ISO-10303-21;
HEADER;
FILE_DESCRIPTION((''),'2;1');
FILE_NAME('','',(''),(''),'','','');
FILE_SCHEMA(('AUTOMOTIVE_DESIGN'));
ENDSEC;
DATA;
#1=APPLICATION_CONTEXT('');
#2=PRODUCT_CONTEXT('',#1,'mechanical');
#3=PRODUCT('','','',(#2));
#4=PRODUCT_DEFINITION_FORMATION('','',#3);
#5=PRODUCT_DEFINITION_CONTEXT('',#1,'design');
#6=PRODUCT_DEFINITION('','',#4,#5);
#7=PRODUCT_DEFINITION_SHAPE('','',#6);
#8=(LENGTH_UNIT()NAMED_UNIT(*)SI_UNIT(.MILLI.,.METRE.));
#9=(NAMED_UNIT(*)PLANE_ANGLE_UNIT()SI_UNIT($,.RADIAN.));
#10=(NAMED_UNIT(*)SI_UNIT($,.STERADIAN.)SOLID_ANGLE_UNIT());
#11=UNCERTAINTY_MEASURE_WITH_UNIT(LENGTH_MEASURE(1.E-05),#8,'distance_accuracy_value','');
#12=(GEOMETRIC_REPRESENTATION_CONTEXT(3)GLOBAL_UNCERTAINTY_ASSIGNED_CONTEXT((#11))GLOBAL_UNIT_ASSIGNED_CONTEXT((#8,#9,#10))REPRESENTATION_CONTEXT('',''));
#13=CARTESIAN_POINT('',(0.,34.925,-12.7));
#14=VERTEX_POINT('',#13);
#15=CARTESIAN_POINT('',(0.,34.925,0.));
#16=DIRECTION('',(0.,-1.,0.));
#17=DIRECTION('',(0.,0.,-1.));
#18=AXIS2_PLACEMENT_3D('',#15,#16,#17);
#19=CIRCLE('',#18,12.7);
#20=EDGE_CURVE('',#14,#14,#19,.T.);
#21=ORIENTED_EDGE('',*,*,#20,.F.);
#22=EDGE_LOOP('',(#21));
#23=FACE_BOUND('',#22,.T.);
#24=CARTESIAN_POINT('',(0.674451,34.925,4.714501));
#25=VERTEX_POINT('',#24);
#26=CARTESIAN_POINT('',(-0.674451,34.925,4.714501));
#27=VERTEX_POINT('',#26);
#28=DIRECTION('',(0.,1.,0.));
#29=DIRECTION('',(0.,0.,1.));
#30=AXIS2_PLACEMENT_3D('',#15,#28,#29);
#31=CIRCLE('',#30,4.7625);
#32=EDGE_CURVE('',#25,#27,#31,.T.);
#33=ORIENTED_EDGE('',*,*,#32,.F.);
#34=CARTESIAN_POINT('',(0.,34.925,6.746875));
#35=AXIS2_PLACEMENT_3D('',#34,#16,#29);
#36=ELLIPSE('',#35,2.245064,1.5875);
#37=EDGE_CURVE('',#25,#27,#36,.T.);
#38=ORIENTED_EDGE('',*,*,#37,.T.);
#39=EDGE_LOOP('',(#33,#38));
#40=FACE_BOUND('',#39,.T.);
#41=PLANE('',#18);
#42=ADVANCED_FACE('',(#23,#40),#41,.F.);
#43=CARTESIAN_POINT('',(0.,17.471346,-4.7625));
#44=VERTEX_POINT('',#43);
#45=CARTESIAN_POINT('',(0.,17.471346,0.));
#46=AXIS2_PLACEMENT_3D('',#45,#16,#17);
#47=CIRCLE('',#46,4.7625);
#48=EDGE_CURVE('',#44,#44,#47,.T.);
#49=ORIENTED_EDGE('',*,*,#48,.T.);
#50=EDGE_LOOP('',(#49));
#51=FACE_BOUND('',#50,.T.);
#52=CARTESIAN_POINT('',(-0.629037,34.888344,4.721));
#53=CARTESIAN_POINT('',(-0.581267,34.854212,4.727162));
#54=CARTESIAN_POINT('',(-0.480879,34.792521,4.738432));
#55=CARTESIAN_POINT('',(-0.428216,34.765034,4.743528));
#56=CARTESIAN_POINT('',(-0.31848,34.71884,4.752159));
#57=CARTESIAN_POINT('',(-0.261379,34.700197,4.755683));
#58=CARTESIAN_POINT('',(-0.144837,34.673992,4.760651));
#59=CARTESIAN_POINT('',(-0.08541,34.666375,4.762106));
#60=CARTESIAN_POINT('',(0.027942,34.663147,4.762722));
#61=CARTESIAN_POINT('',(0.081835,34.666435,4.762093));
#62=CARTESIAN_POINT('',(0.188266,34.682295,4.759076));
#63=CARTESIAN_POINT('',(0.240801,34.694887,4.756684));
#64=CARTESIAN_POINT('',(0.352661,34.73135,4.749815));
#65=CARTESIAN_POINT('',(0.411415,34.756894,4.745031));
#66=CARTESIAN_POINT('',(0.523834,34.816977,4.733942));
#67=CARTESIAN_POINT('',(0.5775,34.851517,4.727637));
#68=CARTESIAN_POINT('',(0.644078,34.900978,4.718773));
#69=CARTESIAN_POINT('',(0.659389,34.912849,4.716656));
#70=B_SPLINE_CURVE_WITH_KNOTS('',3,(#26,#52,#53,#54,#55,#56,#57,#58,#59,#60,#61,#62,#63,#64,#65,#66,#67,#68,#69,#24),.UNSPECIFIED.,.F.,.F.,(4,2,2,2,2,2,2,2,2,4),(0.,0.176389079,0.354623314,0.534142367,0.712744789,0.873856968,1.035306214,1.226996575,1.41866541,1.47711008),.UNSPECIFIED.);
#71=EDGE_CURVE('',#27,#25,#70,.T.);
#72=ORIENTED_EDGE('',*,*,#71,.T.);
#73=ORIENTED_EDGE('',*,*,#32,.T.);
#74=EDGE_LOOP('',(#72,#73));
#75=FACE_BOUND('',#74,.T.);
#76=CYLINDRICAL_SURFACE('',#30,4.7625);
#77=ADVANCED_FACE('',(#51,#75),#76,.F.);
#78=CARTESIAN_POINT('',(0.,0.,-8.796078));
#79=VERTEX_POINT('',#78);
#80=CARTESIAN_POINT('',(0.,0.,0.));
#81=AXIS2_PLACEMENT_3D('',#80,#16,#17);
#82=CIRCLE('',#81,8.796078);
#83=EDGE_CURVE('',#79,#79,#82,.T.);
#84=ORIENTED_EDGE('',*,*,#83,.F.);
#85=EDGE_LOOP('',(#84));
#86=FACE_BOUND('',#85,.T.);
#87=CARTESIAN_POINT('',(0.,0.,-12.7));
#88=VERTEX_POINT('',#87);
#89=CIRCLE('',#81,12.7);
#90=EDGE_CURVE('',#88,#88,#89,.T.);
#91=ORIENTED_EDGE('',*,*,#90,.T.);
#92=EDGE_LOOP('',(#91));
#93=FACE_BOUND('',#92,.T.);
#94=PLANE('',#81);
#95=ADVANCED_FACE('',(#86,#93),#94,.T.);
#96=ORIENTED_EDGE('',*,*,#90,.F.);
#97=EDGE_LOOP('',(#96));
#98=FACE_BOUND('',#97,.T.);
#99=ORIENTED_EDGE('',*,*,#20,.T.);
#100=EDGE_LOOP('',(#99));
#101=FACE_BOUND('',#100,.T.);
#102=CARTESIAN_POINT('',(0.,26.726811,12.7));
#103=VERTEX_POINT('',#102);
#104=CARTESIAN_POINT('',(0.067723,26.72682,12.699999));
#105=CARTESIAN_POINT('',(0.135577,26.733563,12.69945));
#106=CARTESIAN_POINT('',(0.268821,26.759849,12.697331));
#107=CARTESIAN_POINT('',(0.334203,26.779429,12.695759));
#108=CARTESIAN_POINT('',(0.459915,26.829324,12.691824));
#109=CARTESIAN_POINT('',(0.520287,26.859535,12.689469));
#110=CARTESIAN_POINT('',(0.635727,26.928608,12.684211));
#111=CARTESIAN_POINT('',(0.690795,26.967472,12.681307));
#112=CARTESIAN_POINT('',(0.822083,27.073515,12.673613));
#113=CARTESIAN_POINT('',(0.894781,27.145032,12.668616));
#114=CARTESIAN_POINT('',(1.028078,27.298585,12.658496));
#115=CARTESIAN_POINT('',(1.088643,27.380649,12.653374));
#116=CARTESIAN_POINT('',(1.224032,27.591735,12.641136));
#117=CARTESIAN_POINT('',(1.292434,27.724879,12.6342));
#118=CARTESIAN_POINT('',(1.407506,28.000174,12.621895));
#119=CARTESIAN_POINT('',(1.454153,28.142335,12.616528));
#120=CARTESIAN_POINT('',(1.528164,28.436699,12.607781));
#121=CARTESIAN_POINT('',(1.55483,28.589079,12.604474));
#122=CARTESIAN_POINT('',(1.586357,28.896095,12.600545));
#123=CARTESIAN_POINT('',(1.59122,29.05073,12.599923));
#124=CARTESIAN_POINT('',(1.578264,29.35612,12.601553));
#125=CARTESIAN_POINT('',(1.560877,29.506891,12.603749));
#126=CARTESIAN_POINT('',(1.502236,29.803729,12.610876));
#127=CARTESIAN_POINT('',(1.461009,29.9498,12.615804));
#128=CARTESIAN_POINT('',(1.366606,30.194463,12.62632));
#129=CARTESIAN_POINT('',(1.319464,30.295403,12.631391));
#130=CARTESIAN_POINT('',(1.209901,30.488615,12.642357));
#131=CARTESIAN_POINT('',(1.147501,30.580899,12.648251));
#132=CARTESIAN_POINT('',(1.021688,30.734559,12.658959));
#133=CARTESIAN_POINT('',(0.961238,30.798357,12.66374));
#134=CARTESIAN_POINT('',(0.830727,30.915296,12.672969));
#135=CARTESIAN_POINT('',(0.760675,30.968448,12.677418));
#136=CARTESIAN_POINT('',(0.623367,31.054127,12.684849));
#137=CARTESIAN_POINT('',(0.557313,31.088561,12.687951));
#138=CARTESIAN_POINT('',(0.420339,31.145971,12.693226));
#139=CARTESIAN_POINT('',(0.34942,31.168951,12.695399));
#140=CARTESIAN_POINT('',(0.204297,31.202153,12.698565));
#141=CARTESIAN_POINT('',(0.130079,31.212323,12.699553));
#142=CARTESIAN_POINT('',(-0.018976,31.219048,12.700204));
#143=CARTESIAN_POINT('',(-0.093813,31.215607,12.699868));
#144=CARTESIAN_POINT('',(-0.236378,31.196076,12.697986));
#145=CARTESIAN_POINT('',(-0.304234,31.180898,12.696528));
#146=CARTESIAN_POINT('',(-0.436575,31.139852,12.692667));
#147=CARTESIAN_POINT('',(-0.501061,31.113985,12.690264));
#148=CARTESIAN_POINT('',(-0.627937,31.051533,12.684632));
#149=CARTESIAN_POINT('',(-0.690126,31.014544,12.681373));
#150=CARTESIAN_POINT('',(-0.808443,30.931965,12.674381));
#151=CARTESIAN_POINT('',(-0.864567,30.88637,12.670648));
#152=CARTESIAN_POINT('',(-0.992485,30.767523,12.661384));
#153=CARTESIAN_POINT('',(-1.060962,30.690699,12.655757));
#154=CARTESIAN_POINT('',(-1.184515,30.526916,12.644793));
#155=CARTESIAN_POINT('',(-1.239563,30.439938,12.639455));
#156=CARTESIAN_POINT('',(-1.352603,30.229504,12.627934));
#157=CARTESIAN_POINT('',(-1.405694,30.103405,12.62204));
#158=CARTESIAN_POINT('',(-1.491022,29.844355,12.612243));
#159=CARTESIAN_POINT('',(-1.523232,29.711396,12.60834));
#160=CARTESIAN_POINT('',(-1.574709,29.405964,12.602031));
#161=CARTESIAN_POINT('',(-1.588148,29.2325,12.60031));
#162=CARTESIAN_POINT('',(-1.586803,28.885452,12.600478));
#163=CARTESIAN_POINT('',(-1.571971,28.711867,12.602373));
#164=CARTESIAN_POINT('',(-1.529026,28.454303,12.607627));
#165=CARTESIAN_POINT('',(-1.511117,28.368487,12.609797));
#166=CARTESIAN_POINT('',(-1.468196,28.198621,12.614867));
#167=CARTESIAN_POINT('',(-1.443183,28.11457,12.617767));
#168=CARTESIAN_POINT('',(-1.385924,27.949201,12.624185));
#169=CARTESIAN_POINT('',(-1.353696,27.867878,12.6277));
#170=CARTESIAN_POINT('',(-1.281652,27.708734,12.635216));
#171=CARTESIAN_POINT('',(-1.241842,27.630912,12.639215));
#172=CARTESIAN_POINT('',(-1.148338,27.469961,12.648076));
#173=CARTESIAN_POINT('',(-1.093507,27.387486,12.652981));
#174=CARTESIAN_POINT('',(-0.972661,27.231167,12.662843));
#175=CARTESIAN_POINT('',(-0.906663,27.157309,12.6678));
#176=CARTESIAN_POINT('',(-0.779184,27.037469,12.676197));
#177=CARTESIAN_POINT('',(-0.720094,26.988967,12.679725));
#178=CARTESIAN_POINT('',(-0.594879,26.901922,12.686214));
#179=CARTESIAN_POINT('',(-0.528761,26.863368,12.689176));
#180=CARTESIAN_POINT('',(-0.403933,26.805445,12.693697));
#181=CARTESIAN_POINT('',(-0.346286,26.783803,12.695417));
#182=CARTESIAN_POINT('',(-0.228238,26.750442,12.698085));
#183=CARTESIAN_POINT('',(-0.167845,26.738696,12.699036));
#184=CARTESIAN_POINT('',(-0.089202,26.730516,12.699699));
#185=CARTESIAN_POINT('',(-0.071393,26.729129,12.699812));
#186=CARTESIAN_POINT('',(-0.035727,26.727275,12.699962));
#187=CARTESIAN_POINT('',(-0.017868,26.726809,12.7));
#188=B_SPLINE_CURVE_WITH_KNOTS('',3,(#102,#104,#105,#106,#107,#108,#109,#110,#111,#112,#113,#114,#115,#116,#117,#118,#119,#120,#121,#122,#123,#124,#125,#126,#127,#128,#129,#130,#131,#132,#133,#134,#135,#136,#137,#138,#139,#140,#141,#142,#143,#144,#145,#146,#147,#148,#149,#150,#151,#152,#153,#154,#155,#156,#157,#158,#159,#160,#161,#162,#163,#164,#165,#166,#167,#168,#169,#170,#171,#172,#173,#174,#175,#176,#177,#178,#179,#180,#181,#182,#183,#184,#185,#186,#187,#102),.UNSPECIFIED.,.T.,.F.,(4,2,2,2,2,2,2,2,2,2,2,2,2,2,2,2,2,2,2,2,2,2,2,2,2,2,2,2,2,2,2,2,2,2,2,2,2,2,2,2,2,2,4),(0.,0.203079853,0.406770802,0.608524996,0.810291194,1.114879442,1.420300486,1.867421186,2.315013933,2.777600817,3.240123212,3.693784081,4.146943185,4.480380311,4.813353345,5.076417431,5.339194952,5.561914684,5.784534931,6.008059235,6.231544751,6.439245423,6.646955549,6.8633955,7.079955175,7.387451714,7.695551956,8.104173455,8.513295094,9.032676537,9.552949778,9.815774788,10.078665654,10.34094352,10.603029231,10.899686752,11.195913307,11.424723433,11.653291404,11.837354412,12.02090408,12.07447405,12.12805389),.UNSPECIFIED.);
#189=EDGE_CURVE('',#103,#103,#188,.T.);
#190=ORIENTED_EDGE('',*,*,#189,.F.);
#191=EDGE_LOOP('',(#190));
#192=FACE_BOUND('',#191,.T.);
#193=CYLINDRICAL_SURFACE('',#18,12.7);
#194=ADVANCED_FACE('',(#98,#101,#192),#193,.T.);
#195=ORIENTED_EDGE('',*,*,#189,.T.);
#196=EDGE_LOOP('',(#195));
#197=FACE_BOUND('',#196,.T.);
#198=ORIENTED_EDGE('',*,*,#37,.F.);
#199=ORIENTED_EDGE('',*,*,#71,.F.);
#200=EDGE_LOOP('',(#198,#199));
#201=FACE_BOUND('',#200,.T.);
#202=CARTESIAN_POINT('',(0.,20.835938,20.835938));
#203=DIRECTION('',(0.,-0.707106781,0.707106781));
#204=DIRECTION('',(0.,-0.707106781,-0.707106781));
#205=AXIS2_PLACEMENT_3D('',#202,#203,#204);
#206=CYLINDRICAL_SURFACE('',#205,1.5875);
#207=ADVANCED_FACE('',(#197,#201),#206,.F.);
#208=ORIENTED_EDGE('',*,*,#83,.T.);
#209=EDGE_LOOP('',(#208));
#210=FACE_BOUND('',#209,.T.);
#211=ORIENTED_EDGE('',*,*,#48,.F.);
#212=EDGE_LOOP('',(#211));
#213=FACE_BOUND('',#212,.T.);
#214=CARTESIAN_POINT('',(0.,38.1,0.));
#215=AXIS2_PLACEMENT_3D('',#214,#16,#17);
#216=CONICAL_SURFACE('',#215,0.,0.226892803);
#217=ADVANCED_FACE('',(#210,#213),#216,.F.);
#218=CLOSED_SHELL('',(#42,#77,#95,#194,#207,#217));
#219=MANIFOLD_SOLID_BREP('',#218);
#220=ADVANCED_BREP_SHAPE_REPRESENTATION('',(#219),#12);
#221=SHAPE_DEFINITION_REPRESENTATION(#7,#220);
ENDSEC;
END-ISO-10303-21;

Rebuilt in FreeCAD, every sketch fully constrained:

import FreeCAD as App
import Part
import Sketcher
Q = App.Units.Quantity

doc = App.newDocument("Part")
params = doc.addObject("Spreadsheet::Sheet", "Params")
for row, (alias, value) in enumerate([
    ("sketch1_height", "1.5 in"),
    ("revolution_angle", "360 deg"),
    ("sketch2_diameter", "1 in"),
    ("pad1_length", "1.375 in"),
    ("sketch3_diameter", "0.375 in"),
    ("hole_diameter", "0.375 in"),
    ("sketch4_diameter", "0.125 in"),
    ("hole2_diameter", "0.125 in"),
], start=1):
    params.set(f"A{row}", alias)
    params.set(f"B{row}", "=" + value)
    params.setAlias(f"B{row}", alias)

body = doc.addObject("PartDesign::Body", "Body")

# Sketch on XY plane
sketch1 = doc.addObject("Sketcher::SketchObject", "Sketch")
body.addObject(sketch1)
sketch1.AttachmentSupport = (doc.XY_Plane, [""])
sketch1.MapMode = "FlatFace"
sketch1.addGeometry(Part.LineSegment(App.Vector(0, 0, 0), App.Vector(0, 38, 0)), False)
sketch1.addGeometry(Part.LineSegment(App.Vector(0, 38, 0), App.Vector(-9, 0, 0)), False)
sketch1.addGeometry(Part.LineSegment(App.Vector(-9, 0, 0), App.Vector(0, 0, 0)), False)
sketch1.addConstraint(Sketcher.Constraint("Coincident", 0, 2, 1, 1))
sketch1.addConstraint(Sketcher.Constraint("Coincident", 1, 2, 2, 1))
sketch1.addConstraint(Sketcher.Constraint("Coincident", 2, 2, 0, 1))
sketch1.addConstraint(Sketcher.Constraint("Vertical", 0))
sketch1.addConstraint(Sketcher.Constraint("Horizontal", 2))
sketch1.addConstraint(Sketcher.Constraint("Coincident", 2, 2, -1, 1))
sketch1.addConstraint(Sketcher.Constraint("DistanceY", 0, 1, 0, 2, Q("1.5 in")))
sketch1.addConstraint(Sketcher.Constraint("Angle", 1, Q("-103 deg")))
sketch1.setExpression("Constraints[6]", "Params.sketch1_height")
revolution = doc.addObject("PartDesign::Revolution", "Revolution")
body.addObject(revolution)
revolution.Profile = sketch1
revolution.ReferenceAxis = (sketch1, ["V_Axis"])
revolution.setExpression("Angle", "Params.revolution_angle")
body2 = doc.addObject("PartDesign::Body", "Body001")

# Sketch on XZ plane
sketch2 = doc.addObject("Sketcher::SketchObject", "Sketch001")
body2.addObject(sketch2)
sketch2.AttachmentSupport = (doc.getObject("XZ_Plane001"), [""])
sketch2.MapMode = "FlatFace"
sketch2.addGeometry(Part.Circle(App.Vector(0, 0, 0), App.Vector(0, 0, 1), 13), False)
sketch2.addConstraint(Sketcher.Constraint("Coincident", 0, 3, -1, 1))
sketch2.addConstraint(Sketcher.Constraint("Diameter", 0, Q("1 in")))
sketch2.setExpression("Constraints[1]", "Params.sketch2_diameter")
pad1 = doc.addObject("PartDesign::Pad", "Pad")
body2.addObject(pad1)
pad1.Profile = sketch2
pad1.setExpression("Length", "Params.pad1_length")
pad1.Reversed = True
doc.recompute()

boolean = doc.addObject("PartDesign::Boolean", "Boolean")
body2.addObject(boolean)
boolean.Type = "Cut"
boolean.addObjects([body])

# Sketch on XZ plane
sketch3 = doc.addObject("Sketcher::SketchObject", "Sketch002")
body2.addObject(sketch3)
sketch3.AttachmentSupport = (doc.getObject("XZ_Plane001"), [""])
sketch3.MapMode = "FlatFace"
sketch3.AttachmentOffset = App.Placement(App.Vector(0, 0, -1.375 * 25.4), App.Rotation())
sketch3.addGeometry(Part.Circle(App.Vector(0, 0, 0), App.Vector(0, 0, 1), 4.8), False)
sketch3.addConstraint(Sketcher.Constraint("Coincident", 0, 3, -1, 1))
sketch3.addConstraint(Sketcher.Constraint("Diameter", 0, Q("0.375 in")))
sketch3.setExpression("Constraints[1]", "Params.sketch3_diameter")
doc.recompute()
hole = doc.addObject("PartDesign::Hole", "Hole")
body2.addObject(hole)
hole.Profile = sketch3
hole.ThreadType = "None"
hole.setExpression("Diameter", "Params.hole_diameter")
hole.DepthType = "ThroughAll"
hole.Reversed = True

# Sketch on an angled plane
sketch4 = doc.addObject("Sketcher::SketchObject", "Sketch003")
body2.addObject(sketch4)
sketch4.Placement = App.Placement(App.Vector(0, 0, 0), App.Rotation(App.Vector(1, 0, 0), App.Vector(0, 0.707106781, 0.707106781), App.Vector(0, -0.707106781, 0.707106781), "ZXY"))
sketch4.addGeometry(Part.Circle(App.Vector(0, 29.5, 0), App.Vector(0, 0, 1), 1.6), False)
sketch4.addConstraint(Sketcher.Constraint("PointOnObject", 0, 3, -2))
sketch4.addConstraint(Sketcher.Constraint("Diameter", 0, Q("0.125 in")))
sketch4.addConstraint(Sketcher.Constraint("DistanceY", -1, 1, 0, 3, 29.466465))
sketch4.setExpression("Constraints[1]", "Params.sketch4_diameter")
doc.recompute()
hole2 = doc.addObject("PartDesign::Hole", "Hole001")
body2.addObject(hole2)
hole2.Profile = sketch4
hole2.ThreadType = "None"
hole2.setExpression("Diameter", "Params.hole2_diameter")
hole2.DepthType = "ThroughAll"

doc.recompute()
